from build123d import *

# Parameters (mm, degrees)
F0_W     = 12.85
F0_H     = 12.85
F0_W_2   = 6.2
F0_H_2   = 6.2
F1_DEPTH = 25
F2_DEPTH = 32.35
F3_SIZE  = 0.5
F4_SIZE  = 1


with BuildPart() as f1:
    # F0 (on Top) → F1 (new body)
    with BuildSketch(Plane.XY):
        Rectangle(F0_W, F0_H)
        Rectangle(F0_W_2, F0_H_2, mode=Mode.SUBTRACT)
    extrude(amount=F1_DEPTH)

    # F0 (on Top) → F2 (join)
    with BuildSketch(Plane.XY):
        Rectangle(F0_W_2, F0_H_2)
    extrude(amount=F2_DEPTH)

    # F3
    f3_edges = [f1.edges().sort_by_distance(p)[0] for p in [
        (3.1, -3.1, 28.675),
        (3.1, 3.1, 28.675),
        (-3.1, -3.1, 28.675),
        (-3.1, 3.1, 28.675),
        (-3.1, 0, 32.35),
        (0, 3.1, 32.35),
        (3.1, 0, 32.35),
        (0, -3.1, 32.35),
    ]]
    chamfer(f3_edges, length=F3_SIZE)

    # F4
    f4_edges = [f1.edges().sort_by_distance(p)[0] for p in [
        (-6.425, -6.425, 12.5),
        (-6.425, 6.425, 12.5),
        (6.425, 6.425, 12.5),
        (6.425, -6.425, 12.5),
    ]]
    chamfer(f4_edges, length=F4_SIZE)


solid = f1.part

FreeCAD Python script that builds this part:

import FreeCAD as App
import Part
import Sketcher

V = App.Vector


def edges_at(feature, points):
    """Names of the edges that pass closest to the given points."""
    edges = feature.Shape.Edges
    near = lambda p: min(range(len(edges)), key=lambda i: edges[i].distToShape(Part.Vertex(*p))[0])
    return sorted({f"Edge{near(p) + 1}" for p in points})


def add_polygon(sketch, points):
    """Adds a closed chain of lines whose ends are joined by coincident constraints."""
    first, n = sketch.GeometryCount, len(points)
    for a, b in zip(points, points[1:] + points[:1]):
        sketch.addGeometry(Part.LineSegment(App.Vector(*a, 0), App.Vector(*b, 0)), False)
    for i in range(n):
        sketch.addConstraint(Sketcher.Constraint("Coincident", first + i, 2, first + (i + 1) % n, 1))

doc = App.newDocument("Part")
body = doc.addObject("PartDesign::Body", "Body")

# Sketch on XY plane
sketch1 = doc.addObject("Sketcher::SketchObject", "Sketch")
body.addObject(sketch1)
sketch1.AttachmentSupport = (doc.XY_Plane, [""])
sketch1.MapMode = "FlatFace"
add_polygon(sketch1, [(-6, 6), (-6, -6), (6, -6), (6, 6)])  # lines 0-3
add_polygon(sketch1, [(3, -3), (-3, -3), (-3, 3), (3, 3)])  # lines 4-7
sketch1.addConstraint([
    Sketcher.Constraint("Vertical", 0),
    Sketcher.Constraint("Horizontal", 1),
    Sketcher.Constraint("Vertical", 2),
    Sketcher.Constraint("Horizontal", 3),
    Sketcher.Constraint("Horizontal", 4),
    Sketcher.Constraint("Vertical", 5),
    Sketcher.Constraint("Horizontal", 6),
    Sketcher.Constraint("Vertical", 7),
    Sketcher.Constraint("Symmetric", 0, 2, 2, 2, -1, 1),
    Sketcher.Constraint("Symmetric", 4, 2, 6, 2, -1, 1),
    Sketcher.Constraint("Equal", 3, 0),
    Sketcher.Constraint("Equal", 6, 5),
    Sketcher.Constraint("DistanceX", 4, 2, 4, 1, 6.2),
    Sketcher.Constraint("DistanceX", 1, 1, 1, 2, 12.85),
])
pad1 = doc.addObject("PartDesign::Pad", "Pad")
body.addObject(pad1)
pad1.Profile = sketch1
pad1.Length = 25

# Sketch on XY plane
sketch2 = doc.addObject("Sketcher::SketchObject", "Sketch001")
body.addObject(sketch2)
sketch2.AttachmentSupport = (doc.XY_Plane, [""])
sketch2.MapMode = "FlatFace"
add_polygon(sketch2, [(-3, 3), (-3, -3), (3, -3), (3, 3)])  # lines 0-3
sketch2.addConstraint([
    Sketcher.Constraint("Vertical", 0),
    Sketcher.Constraint("Horizontal", 1),
    Sketcher.Constraint("Vertical", 2),
    Sketcher.Constraint("Horizontal", 3),
    Sketcher.Constraint("Symmetric", 0, 2, 2, 2, -1, 1),
    Sketcher.Constraint("Equal", 3, 0),
    Sketcher.Constraint("DistanceX", 1, 1, 1, 2, 6.2),
])
pad2 = doc.addObject("PartDesign::Pad", "Pad001")
body.addObject(pad2)
pad2.Profile = sketch2
pad2.Length = 32.35
doc.recompute()

chamfer = doc.addObject("PartDesign::Chamfer", "Chamfer")
body.addObject(chamfer)
chamfer.Base = (pad2, edges_at(pad2, [
    (3.1, -3.1, 28.675),
    (3.1, 3.1, 28.675),
    (-3.1, -3.1, 28.675),
    (-3.1, 3.1, 28.675),
    (-3.1, 0, 32.35),
    (0, 3.1, 32.35),
    (3.1, 0, 32.35),
    (0, -3.1, 32.35),
]))
chamfer.Size = 0.5
doc.recompute()

chamfer2 = doc.addObject("PartDesign::Chamfer", "Chamfer001")
body.addObject(chamfer2)
chamfer2.Base = (chamfer, edges_at(chamfer, [
    (-6.425, -6.425, 12.5),
    (-6.425, 6.425, 12.5),
    (6.425, 6.425, 12.5),
    (6.425, -6.425, 12.5),
]))
chamfer2.Size = 1

doc.recompute()
